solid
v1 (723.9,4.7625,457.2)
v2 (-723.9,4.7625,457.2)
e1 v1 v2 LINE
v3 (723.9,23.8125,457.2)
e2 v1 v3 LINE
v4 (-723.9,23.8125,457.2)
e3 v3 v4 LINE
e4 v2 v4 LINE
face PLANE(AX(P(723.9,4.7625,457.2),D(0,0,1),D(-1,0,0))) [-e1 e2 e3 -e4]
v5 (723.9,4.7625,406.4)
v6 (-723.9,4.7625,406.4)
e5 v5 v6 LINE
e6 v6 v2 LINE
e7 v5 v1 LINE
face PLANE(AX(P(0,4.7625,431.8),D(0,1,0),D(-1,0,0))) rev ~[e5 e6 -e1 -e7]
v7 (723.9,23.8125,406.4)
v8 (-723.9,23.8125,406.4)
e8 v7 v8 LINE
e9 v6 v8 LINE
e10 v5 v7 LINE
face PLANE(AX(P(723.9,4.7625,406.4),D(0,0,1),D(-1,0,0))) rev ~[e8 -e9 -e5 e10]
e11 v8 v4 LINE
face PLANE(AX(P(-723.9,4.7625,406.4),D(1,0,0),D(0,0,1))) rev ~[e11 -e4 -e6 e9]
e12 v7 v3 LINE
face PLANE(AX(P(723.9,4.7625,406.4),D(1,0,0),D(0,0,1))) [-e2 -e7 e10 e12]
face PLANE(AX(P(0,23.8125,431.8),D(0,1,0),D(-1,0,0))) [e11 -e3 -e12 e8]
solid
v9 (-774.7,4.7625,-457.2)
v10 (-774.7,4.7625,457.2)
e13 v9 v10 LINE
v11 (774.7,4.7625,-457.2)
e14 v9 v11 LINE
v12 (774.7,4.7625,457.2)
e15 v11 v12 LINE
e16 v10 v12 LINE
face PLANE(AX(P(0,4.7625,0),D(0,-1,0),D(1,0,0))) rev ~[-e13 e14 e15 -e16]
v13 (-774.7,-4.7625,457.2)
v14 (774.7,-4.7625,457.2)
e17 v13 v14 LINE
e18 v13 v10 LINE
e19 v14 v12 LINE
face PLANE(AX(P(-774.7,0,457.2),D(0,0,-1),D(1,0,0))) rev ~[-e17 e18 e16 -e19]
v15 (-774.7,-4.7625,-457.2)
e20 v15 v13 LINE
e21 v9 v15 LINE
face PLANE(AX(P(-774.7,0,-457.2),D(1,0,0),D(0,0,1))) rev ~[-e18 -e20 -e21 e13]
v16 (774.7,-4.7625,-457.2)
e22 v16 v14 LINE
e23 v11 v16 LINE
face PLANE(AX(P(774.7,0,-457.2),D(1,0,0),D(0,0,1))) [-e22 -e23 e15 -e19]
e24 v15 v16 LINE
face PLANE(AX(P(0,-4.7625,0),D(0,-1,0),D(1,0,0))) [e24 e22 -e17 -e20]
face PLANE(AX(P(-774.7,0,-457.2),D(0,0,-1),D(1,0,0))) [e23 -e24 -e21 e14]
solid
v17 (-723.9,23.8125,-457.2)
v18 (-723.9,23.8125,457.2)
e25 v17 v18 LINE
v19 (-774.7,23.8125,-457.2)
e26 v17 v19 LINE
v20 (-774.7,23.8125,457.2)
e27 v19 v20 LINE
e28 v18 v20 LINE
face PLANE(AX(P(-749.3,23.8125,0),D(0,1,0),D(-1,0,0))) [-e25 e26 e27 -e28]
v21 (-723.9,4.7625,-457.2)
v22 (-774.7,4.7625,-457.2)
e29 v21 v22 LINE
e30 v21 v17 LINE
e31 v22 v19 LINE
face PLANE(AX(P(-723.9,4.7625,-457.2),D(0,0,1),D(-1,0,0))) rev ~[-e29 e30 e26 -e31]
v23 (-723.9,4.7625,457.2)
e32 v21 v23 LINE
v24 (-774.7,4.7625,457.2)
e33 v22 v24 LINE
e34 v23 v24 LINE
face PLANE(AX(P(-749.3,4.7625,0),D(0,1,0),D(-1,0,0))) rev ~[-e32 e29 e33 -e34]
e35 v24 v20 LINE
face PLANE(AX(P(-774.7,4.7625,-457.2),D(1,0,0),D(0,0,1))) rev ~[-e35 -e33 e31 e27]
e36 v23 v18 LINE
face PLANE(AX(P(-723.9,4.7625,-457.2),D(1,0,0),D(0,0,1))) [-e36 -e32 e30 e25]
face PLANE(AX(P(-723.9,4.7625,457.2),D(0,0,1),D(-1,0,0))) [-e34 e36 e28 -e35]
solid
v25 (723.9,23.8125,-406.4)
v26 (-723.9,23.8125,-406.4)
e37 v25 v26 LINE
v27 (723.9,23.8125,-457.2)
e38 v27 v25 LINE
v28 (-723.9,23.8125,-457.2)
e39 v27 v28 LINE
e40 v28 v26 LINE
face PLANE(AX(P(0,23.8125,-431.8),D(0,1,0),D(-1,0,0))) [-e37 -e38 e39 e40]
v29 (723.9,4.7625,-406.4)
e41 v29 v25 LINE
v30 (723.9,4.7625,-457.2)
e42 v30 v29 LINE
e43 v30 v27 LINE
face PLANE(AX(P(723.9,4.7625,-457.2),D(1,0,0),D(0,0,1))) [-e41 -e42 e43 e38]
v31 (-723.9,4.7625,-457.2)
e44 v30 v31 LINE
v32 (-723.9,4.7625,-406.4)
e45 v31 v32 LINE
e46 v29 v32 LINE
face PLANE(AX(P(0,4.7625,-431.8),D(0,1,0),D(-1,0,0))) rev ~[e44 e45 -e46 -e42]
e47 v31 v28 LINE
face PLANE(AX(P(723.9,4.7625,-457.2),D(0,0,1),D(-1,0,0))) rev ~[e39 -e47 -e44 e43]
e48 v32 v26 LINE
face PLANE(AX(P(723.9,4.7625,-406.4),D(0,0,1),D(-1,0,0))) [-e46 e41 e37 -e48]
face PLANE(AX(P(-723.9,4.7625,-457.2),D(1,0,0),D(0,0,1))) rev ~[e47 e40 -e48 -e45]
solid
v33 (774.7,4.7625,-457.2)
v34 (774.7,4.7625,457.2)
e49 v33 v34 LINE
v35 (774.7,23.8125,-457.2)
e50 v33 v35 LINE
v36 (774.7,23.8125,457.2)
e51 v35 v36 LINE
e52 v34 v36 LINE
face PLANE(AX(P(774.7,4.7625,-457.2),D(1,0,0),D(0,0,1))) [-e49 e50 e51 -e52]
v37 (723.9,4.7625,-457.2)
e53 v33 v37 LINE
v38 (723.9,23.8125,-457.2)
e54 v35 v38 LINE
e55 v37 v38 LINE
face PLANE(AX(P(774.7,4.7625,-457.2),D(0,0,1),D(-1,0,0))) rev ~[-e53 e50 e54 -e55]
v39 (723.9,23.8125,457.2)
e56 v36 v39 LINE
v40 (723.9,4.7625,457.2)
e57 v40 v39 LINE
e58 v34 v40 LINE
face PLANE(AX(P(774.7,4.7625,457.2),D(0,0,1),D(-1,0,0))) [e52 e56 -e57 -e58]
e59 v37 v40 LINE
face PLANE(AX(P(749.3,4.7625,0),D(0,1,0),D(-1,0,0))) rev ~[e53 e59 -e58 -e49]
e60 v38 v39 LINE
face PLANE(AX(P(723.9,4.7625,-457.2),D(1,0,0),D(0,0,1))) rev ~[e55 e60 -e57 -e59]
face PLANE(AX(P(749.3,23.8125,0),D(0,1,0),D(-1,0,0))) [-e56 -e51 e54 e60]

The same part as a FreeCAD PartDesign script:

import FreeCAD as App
import Part
import Sketcher

V = App.Vector
Q = App.Units.Quantity

doc = App.newDocument("Part")
body = doc.addObject("PartDesign::Body", "Body")

# Sketch on XZ plane
sketch1 = body.newObject("Sketcher::SketchObject", "Sketch")
sketch1.AttachmentSupport = (doc.getObject("XZ_Plane"), [""])
sketch1.MapMode = "FlatFace"
sketch1.addGeometry([
    Part.LineSegment(V(-775, 457, 0), V(-775, -457, 0)),
    Part.LineSegment(V(-775, -457, 0), V(775, -457, 0)),
    Part.LineSegment(V(775, -457, 0), V(775, 457, 0)),
    Part.LineSegment(V(775, 457, 0), V(-775, 457, 0)),
], False)
sketch1.addConstraint([
    Sketcher.Constraint("Coincident", 0, 2, 1, 1),
    Sketcher.Constraint("Coincident", 1, 2, 2, 1),
    Sketcher.Constraint("Coincident", 2, 2, 3, 1),
    Sketcher.Constraint("Coincident", 3, 2, 0, 1),
    Sketcher.Constraint("Vertical", 0),
    Sketcher.Constraint("Horizontal", 1),
    Sketcher.Constraint("Vertical", 2),
    Sketcher.Constraint("Horizontal", 3),
    Sketcher.Constraint("Symmetric", 0, 2, 2, 2, -1, 1),
    Sketcher.Constraint("DistanceX", 1, 1, 1, 2, Q("61 in")),
    Sketcher.Constraint("DistanceY", 0, 2, 0, 1, Q("36 in")),
])
pad1 = body.newObject("PartDesign::Pad", "Pad")
pad1.Profile = sketch1
pad1.Length = Q("0.375 in")
pad1.Midplane = True
body2 = doc.addObject("PartDesign::Body", "Body001")
body2.AllowCompound = True

# Sketch on XZ plane
sketch2 = body2.newObject("Sketcher::SketchObject", "Sketch001")
sketch2.AttachmentSupport = (doc.getObject("XZ_Plane001"), [""])
sketch2.MapMode = "FlatFace"
sketch2.AttachmentOffset = App.Placement(V(0, 0, -0.1875 * 25.4), App.Rotation())
sketch2.addGeometry([
    Part.LineSegment(V(775, 457, 0), V(775, -457, 0)),  # 0
    Part.LineSegment(V(775, -457, 0), V(724, -457, 0)),  # 1
    Part.LineSegment(V(724, -457, 0), V(724, 457, 0)),  # 2
    Part.LineSegment(V(724, 457, 0), V(775, 457, 0)),  # 3
    Part.LineSegment(V(-724, 457, 0), V(-724, -457, 0)),  # 4
    Part.LineSegment(V(-724, -457, 0), V(-775, -457, 0)),  # 5
    Part.LineSegment(V(-775, -457, 0), V(-775, 457, 0)),  # 6
    Part.LineSegment(V(-775, 457, 0), V(-724, 457, 0)),  # 7
], False)
sketch2.addConstraint([
    Sketcher.Constraint("Coincident", 0, 2, 1, 1),
    Sketcher.Constraint("Coincident", 1, 2, 2, 1),
    Sketcher.Constraint("Coincident", 2, 2, 3, 1),
    Sketcher.Constraint("Coincident", 3, 2, 0, 1),
    Sketcher.Constraint("Coincident", 4, 2, 5, 1),
    Sketcher.Constraint("Coincident", 5, 2, 6, 1),
    Sketcher.Constraint("Coincident", 6, 2, 7, 1),
    Sketcher.Constraint("Coincident", 7, 2, 4, 1),
    Sketcher.Constraint("Vertical", 0),
    Sketcher.Constraint("Horizontal", 1),
    Sketcher.Constraint("Vertical", 2),
    Sketcher.Constraint("Horizontal", 3),
    Sketcher.Constraint("Vertical", 4),
    Sketcher.Constraint("Horizontal", 5),
    Sketcher.Constraint("Vertical", 6),
    Sketcher.Constraint("Horizontal", 7),
    Sketcher.Constraint("Symmetric", 2, 2, 4, 2, -1, 1),
    Sketcher.Constraint("Symmetric", 0, 2, 6, 2, -1, 1),
    Sketcher.Constraint("Horizontal", 1, 2, 4, 2),
    Sketcher.Constraint("DistanceX", 1, 2, 1, 1, Q("2 in")),
    Sketcher.Constraint("DistanceY", 0, 2, 0, 1, Q("36 in")),
    Sketcher.Constraint("DistanceX", 4, 2, 1, 2, Q("57 in")),
])
pad2 = body2.newObject("PartDesign::Pad", "Pad001")
pad2.Profile = sketch2
pad2.Length = Q("0.75 in")
pad2.Reversed = True
body3 = doc.addObject("PartDesign::Body", "Body002")
body3.AllowCompound = True

# Sketch on XZ plane
sketch3 = body3.newObject("Sketcher::SketchObject", "Sketch002")
sketch3.AttachmentSupport = (doc.getObject("XZ_Plane002"), [""])
sketch3.MapMode = "FlatFace"
sketch3.AttachmentOffset = App.Placement(V(0, 0, -0.1875 * 25.4), App.Rotation())
sketch3.addGeometry([
    Part.LineSegment(V(724, 457, 0), V(724, 406, 0)),  # 0
    Part.LineSegment(V(724, 406, 0), V(-724, 406, 0)),  # 1
    Part.LineSegment(V(-724, 406, 0), V(-724, 457, 0)),  # 2
    Part.LineSegment(V(-724, 457, 0), V(724, 457, 0)),  # 3
    Part.LineSegment(V(724, -406, 0), V(724, -457, 0)),  # 4
    Part.LineSegment(V(724, -457, 0), V(-724, -457, 0)),  # 5
    Part.LineSegment(V(-724, -457, 0), V(-724, -406, 0)),  # 6
    Part.LineSegment(V(-724, -406, 0), V(724, -406, 0)),  # 7
], False)
sketch3.addConstraint([
    Sketcher.Constraint("Coincident", 0, 2, 1, 1),
    Sketcher.Constraint("Coincident", 1, 2, 2, 1),
    Sketcher.Constraint("Coincident", 2, 2, 3, 1),
    Sketcher.Constraint("Coincident", 3, 2, 0, 1),
    Sketcher.Constraint("Coincident", 4, 2, 5, 1),
    Sketcher.Constraint("Coincident", 5, 2, 6, 1),
    Sketcher.Constraint("Coincident", 6, 2, 7, 1),
    Sketcher.Constraint("Coincident", 7, 2, 4, 1),
    Sketcher.Constraint("Vertical", 0),
    Sketcher.Constraint("Horizontal", 1),
    Sketcher.Constraint("Vertical", 2),
    Sketcher.Constraint("Horizontal", 3),
    Sketcher.Constraint("Vertical", 4),
    Sketcher.Constraint("Horizontal", 5),
    Sketcher.Constraint("Vertical", 6),
    Sketcher.Constraint("Horizontal", 7),
    Sketcher.Constraint("Symmetric", 2, 2, 4, 2, -1, 1),
    Sketcher.Constraint("Symmetric", 0, 2, 6, 2, -1, 1),
    Sketcher.Constraint("Vertical", 3, 2, 4, 2),
    Sketcher.Constraint("DistanceX", 1, 2, 1, 1, Q("57 in")),
    Sketcher.Constraint("DistanceY", 0, 2, 0, 1, Q("2 in")),
    Sketcher.Constraint("DistanceY", -1, 1, 0, 2, Q("16 in")),
])
pad3 = body3.newObject("PartDesign::Pad", "Pad002")
pad3.Profile = sketch3
pad3.Length = Q("0.75 in")
pad3.Reversed = True

doc.recompute()
